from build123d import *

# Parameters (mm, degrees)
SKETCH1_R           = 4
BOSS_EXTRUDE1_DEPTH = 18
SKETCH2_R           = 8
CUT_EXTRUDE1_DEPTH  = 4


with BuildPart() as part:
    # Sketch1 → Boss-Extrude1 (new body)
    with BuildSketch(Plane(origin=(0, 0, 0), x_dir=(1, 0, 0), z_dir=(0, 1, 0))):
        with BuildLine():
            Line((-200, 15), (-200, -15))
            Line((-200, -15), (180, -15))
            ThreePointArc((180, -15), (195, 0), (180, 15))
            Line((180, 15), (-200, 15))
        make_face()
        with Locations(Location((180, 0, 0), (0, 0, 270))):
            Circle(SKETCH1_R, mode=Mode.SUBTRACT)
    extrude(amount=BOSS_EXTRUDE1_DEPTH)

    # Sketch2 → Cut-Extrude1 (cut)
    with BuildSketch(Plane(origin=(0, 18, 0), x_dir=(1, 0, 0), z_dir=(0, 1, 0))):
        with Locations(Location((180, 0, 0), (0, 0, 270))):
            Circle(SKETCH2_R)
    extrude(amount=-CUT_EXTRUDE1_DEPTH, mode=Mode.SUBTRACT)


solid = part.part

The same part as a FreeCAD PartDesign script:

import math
import FreeCAD as App
import Part
import Sketcher
Q = App.Units.Quantity

doc = App.newDocument("Part")
body = doc.addObject("PartDesign::Body", "Body")

# Sketch on XZ plane
sketch1 = body.newObject("Sketcher::SketchObject", "Sketch")
sketch1.AttachmentSupport = (doc.getObject("XZ_Plane"), [""])
sketch1.MapMode = "FlatFace"
sketch1.addGeometry([
    Part.LineSegment(App.Vector(-200, -15, 0), App.Vector(-200, 15, 0)),  # 0
    Part.LineSegment(App.Vector(-200, 15, 0), App.Vector(180, 15, 0)),  # 1
    Part.ArcOfCircle(Part.Circle(App.Vector(180, 0, 0), App.Vector(0, 0, 1), 15), math.radians(-90), math.radians(90)),  # 2
    Part.LineSegment(App.Vector(180, -15, 0), App.Vector(-200, -15, 0)),  # 3
    Part.Circle(App.Vector(180, 0, 0), App.Vector(0, 0, 1), 4),  # 4
], False)
sketch1.addConstraint([
    Sketcher.Constraint("Coincident", 0, 2, 1, 1),
    Sketcher.Constraint("Tangent", 1, 2, 2, 2),
    Sketcher.Constraint("Tangent", 2, 1, 3, 1),
    Sketcher.Constraint("Coincident", 3, 2, 0, 1),
    Sketcher.Constraint("Vertical", 0),
    Sketcher.Constraint("Horizontal", 1),
    Sketcher.Constraint("Horizontal", 3),
    Sketcher.Constraint("Coincident", 4, 3, 2, 3),
    Sketcher.Constraint("PointOnObject", 2, 3, -1),
    Sketcher.Constraint("Diameter", 4, Q("8 mm")),
    Sketcher.Constraint("Radius", 2, Q("15 mm")),
    Sketcher.Constraint("DistanceX", 1, 1, 1, 2, Q("380 mm")),
    Sketcher.Constraint("DistanceX", -1, 1, 2, 3, Q("180 mm")),
])
pad1 = body.newObject("PartDesign::Pad", "Pad")
pad1.Profile = sketch1
pad1.Length = 18
pad1.Reversed = True

# Sketch on XZ plane
sketch2 = body.newObject("Sketcher::SketchObject", "Sketch001")
sketch2.AttachmentSupport = (doc.getObject("XZ_Plane"), [""])
sketch2.MapMode = "FlatFace"
sketch2.AttachmentOffset = App.Placement(App.Vector(0, 0, -18), App.Rotation())
sketch2.addGeometry(Part.Circle(App.Vector(180, 0, 0), App.Vector(0, 0, 1), 8), False)
sketch2.addConstraint([
    Sketcher.Constraint("PointOnObject", 0, 3, -1),
    Sketcher.Constraint("Diameter", 0, Q("16 mm")),
    Sketcher.Constraint("DistanceX", -1, 1, 0, 3, Q("180 mm")),
])
pocket1 = body.newObject("PartDesign::Pocket", "Pocket")
pocket1.Profile = sketch2
pocket1.Length = 4
pocket1.Reversed = True

doc.recompute()
